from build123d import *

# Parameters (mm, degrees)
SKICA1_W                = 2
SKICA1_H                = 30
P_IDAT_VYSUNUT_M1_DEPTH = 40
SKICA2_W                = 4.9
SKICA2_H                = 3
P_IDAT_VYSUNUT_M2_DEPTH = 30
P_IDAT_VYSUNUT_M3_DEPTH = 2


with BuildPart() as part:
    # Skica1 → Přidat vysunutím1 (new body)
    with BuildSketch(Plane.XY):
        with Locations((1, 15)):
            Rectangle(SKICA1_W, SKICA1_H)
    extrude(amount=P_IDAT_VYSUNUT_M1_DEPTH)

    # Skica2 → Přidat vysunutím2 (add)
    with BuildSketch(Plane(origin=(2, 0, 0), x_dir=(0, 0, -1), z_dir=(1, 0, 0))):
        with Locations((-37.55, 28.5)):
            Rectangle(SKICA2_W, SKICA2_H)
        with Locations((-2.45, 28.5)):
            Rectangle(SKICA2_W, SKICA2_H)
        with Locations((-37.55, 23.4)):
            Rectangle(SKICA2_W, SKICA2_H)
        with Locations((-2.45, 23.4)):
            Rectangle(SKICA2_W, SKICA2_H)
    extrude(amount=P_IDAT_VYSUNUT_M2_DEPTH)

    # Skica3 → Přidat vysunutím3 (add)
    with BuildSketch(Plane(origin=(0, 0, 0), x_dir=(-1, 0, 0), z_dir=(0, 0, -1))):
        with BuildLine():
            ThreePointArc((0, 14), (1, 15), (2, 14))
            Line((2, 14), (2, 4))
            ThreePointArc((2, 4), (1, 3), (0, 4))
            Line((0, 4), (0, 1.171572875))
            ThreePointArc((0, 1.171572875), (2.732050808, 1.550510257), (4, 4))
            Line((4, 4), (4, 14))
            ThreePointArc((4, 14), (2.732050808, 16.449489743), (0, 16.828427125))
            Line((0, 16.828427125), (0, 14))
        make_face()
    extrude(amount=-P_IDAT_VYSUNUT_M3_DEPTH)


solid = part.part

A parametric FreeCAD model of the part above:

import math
import FreeCAD as App
import Part
import Sketcher
Q = App.Units.Quantity

doc = App.newDocument("Part")
body = doc.addObject("PartDesign::Body", "Body")

# Sketch on XY plane
sketch1 = body.newObject("Sketcher::SketchObject", "Sketch")
sketch1.AttachmentSupport = (doc.getObject("XY_Plane"), [""])
sketch1.MapMode = "FlatFace"
sketch1.addGeometry([
    Part.LineSegment(App.Vector(0, 30, 0), App.Vector(0, 0, 0)),
    Part.LineSegment(App.Vector(0, 0, 0), App.Vector(2, 0, 0)),
    Part.LineSegment(App.Vector(2, 0, 0), App.Vector(2, 30, 0)),
    Part.LineSegment(App.Vector(2, 30, 0), App.Vector(0, 30, 0)),
], False)
sketch1.addConstraint([
    Sketcher.Constraint("Coincident", 0, 2, 1, 1),
    Sketcher.Constraint("Coincident", 1, 2, 2, 1),
    Sketcher.Constraint("Coincident", 2, 2, 3, 1),
    Sketcher.Constraint("Coincident", 3, 2, 0, 1),
    Sketcher.Constraint("Vertical", 0),
    Sketcher.Constraint("Horizontal", 1),
    Sketcher.Constraint("Vertical", 2),
    Sketcher.Constraint("Horizontal", 3),
    Sketcher.Constraint("Coincident", 0, 2, -1, 1),
    Sketcher.Constraint("DistanceX", 1, 1, 1, 2, Q("2 mm")),
    Sketcher.Constraint("DistanceY", 0, 2, 0, 1, Q("30 mm")),
])
pad1 = body.newObject("PartDesign::Pad", "Pad")
pad1.Profile = sketch1
pad1.Length = 40

# Sketch on YZ plane
sketch2 = body.newObject("Sketcher::SketchObject", "Sketch001")
sketch2.AttachmentSupport = (doc.getObject("YZ_Plane"), [""])
sketch2.MapMode = "FlatFace"
sketch2.AttachmentOffset = App.Placement(App.Vector(0, 0, 2), App.Rotation())
sketch2.addGeometry([
    Part.LineSegment(App.Vector(30, 40, 0), App.Vector(27, 40, 0)),  # 0
    Part.LineSegment(App.Vector(27, 40, 0), App.Vector(27, 35.1, 0)),  # 1
    Part.LineSegment(App.Vector(27, 35.1, 0), App.Vector(30, 35.1, 0)),  # 2
    Part.LineSegment(App.Vector(30, 35.1, 0), App.Vector(30, 40, 0)),  # 3
    Part.LineSegment(App.Vector(30, 4.9, 0), App.Vector(27, 4.9, 0)),  # 4
    Part.LineSegment(App.Vector(27, 4.9, 0), App.Vector(27, 0, 0)),  # 5
    Part.LineSegment(App.Vector(27, 0, 0), App.Vector(30, 0, 0)),  # 6
    Part.LineSegment(App.Vector(30, 0, 0), App.Vector(30, 4.9, 0)),  # 7
    Part.LineSegment(App.Vector(24.9, 40, 0), App.Vector(21.9, 40, 0)),  # 8
    Part.LineSegment(App.Vector(21.9, 40, 0), App.Vector(21.9, 35.1, 0)),  # 9
    Part.LineSegment(App.Vector(21.9, 35.1, 0), App.Vector(24.9, 35.1, 0)),  # 10
    Part.LineSegment(App.Vector(24.9, 35.1, 0), App.Vector(24.9, 40, 0)),  # 11
    Part.LineSegment(App.Vector(24.9, 4.9, 0), App.Vector(21.9, 4.9, 0)),  # 12
    Part.LineSegment(App.Vector(21.9, 4.9, 0), App.Vector(21.9, 0, 0)),  # 13
    Part.LineSegment(App.Vector(21.9, 0, 0), App.Vector(24.9, 0, 0)),  # 14
    Part.LineSegment(App.Vector(24.9, 0, 0), App.Vector(24.9, 4.9, 0)),  # 15
], False)
sketch2.addConstraint([
    Sketcher.Constraint("Coincident", 0, 2, 1, 1),
    Sketcher.Constraint("Coincident", 1, 2, 2, 1),
    Sketcher.Constraint("Coincident", 2, 2, 3, 1),
    Sketcher.Constraint("Coincident", 3, 2, 0, 1),
    Sketcher.Constraint("Coincident", 4, 2, 5, 1),
    Sketcher.Constraint("Coincident", 5, 2, 6, 1),
    Sketcher.Constraint("Coincident", 6, 2, 7, 1),
    Sketcher.Constraint("Coincident", 7, 2, 4, 1),
    Sketcher.Constraint("Coincident", 8, 2, 9, 1),
    Sketcher.Constraint("Coincident", 9, 2, 10, 1),
    Sketcher.Constraint("Coincident", 10, 2, 11, 1),
    Sketcher.Constraint("Coincident", 11, 2, 8, 1),
    Sketcher.Constraint("Coincident", 12, 2, 13, 1),
    Sketcher.Constraint("Coincident", 13, 2, 14, 1),
    Sketcher.Constraint("Coincident", 14, 2, 15, 1),
    Sketcher.Constraint("Coincident", 15, 2, 12, 1),
    Sketcher.Constraint("Horizontal", 0),
    Sketcher.Constraint("Vertical", 1),
    Sketcher.Constraint("Horizontal", 2),
    Sketcher.Constraint("Vertical", 3),
    Sketcher.Constraint("Horizontal", 4),
    Sketcher.Constraint("Vertical", 5),
    Sketcher.Constraint("Horizontal", 6),
    Sketcher.Constraint("Vertical", 7),
    Sketcher.Constraint("Horizontal", 8),
    Sketcher.Constraint("Vertical", 9),
    Sketcher.Constraint("Horizontal", 10),
    Sketcher.Constraint("Vertical", 11),
    Sketcher.Constraint("Horizontal", 12),
    Sketcher.Constraint("Vertical", 13),
    Sketcher.Constraint("Horizontal", 14),
    Sketcher.Constraint("Vertical", 15),
    Sketcher.Constraint("PointOnObject", 5, 2, -1),
    Sketcher.Constraint("PointOnObject", 13, 2, -1),
    Sketcher.Constraint("Horizontal", 3, 2, 8, 2),
    Sketcher.Constraint("Horizontal", 2, 2, 9, 2),
    Sketcher.Constraint("Horizontal", 7, 2, 12, 2),
    Sketcher.Constraint("Vertical", 1, 2, 4, 2),
    Sketcher.Constraint("Vertical", 3, 2, 6, 2),
    Sketcher.Constraint("Vertical", 9, 2, 12, 2),
    Sketcher.Constraint("Vertical", 11, 2, 14, 2),
    Sketcher.Constraint("Equal", 6, 8),
    Sketcher.Constraint("Equal", 3, 5),
    Sketcher.Constraint("DistanceX", 0, 2, 0, 1, Q("3 mm")),
    Sketcher.Constraint("DistanceY", 1, 2, 1, 1, Q("4.9 mm")),
    Sketcher.Constraint("DistanceX", -1, 1, 0, 2, Q("27 mm")),
    Sketcher.Constraint("DistanceY", -1, 1, 0, 2, Q("40 mm")),
    Sketcher.Constraint("DistanceX", -1, 1, 8, 2, Q("21.9 mm")),
])
pad2 = body.newObject("PartDesign::Pad", "Pad001")
pad2.Profile = sketch2
pad2.Length = 30

# Sketch on XY plane
sketch3 = body.newObject("Sketcher::SketchObject", "Sketch002")
sketch3.AttachmentSupport = (doc.getObject("XY_Plane"), [""])
sketch3.MapMode = "FlatFace"
sketch3.addGeometry([
    Part.ArcOfCircle(Part.Circle(App.Vector(-1, 14, 0), App.Vector(0, 0, 1), 1), math.radians(0), math.radians(180)),  # 0
    Part.LineSegment(App.Vector(-2, 14, 0), App.Vector(-2, 4, 0)),  # 1
    Part.ArcOfCircle(Part.Circle(App.Vector(-1, 4, 0), App.Vector(0, 0, 1), 1), math.radians(180), math.radians(360)),  # 2
    Part.LineSegment(App.Vector(0, 4, 0), App.Vector(0, 1.2, 0)),  # 3
    Part.ArcOfCircle(Part.Circle(App.Vector(-1, 4, 0), App.Vector(0, 0, 1), 3), math.radians(180), math.radians(289)),  # 4
    Part.LineSegment(App.Vector(-4, 4, 0), App.Vector(-4, 14, 0)),  # 5
    Part.ArcOfCircle(Part.Circle(App.Vector(-1, 14, 0), App.Vector(0, 0, 1), 3), math.radians(71), math.radians(180)),  # 6
    Part.LineSegment(App.Vector(0, 16.8, 0), App.Vector(0, 14, 0)),  # 7
], False)
sketch3.addConstraint([
    Sketcher.Constraint("Tangent", 0, 2, 1, 1),
    Sketcher.Constraint("Tangent", 1, 2, 2, 1),
    Sketcher.Constraint("Tangent", 2, 2, 3, 1),
    Sketcher.Constraint("Coincident", 3, 2, 4, 2),
    Sketcher.Constraint("Tangent", 4, 1, 5, 1),
    Sketcher.Constraint("Tangent", 5, 2, 6, 2),
    Sketcher.Constraint("Coincident", 6, 1, 7, 1),
    Sketcher.Constraint("Tangent", 7, 2, 0, 1),
    Sketcher.Constraint("Vertical", 1),
    Sketcher.Constraint("Vertical", 3),
    Sketcher.Constraint("Vertical", 5),
    Sketcher.Constraint("Vertical", 7),
    Sketcher.Constraint("Coincident", 4, 3, 2, 3),
    Sketcher.Constraint("Coincident", 6, 3, 0, 3),
    Sketcher.Constraint("Equal", 0, 2),
    Sketcher.Constraint("PointOnObject", 2, 2, -2),
    Sketcher.Constraint("Radius", 0, Q("1 mm")),
    Sketcher.Constraint("Radius", 4, Q("3 mm")),
    Sketcher.Constraint("DistanceY", 1, 2, 1, 1, Q("10 mm")),
    Sketcher.Constraint("DistanceY", -1, 1, 0, 3, Q("14 mm")),
])
pad3 = body.newObject("PartDesign::Pad", "Pad002")
pad3.Profile = sketch3
pad3.Length = 2

doc.recompute()
